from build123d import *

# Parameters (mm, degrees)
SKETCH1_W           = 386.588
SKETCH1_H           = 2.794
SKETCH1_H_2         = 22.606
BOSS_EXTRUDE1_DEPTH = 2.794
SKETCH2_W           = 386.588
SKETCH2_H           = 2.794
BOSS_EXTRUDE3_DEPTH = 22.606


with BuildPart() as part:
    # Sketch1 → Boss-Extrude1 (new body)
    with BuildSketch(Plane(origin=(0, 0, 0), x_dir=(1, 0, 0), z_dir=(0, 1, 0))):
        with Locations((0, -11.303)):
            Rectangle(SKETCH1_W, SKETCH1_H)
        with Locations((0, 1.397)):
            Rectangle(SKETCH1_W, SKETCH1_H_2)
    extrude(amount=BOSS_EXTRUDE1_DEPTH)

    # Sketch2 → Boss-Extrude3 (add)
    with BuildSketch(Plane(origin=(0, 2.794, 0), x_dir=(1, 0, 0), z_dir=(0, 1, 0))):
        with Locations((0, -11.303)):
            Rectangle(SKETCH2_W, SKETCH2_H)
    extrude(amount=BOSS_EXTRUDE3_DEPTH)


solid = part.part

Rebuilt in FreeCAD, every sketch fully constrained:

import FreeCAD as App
import Part
import Sketcher
from FreeCAD import Vector
Q = App.Units.Quantity

doc = App.newDocument("Part")
body = doc.addObject("PartDesign::Body", "Body")

sketch1 = doc.addObject("Sketcher::SketchObject", "Sketch")
body.addObject(sketch1)
sketch1.AttachmentSupport = (doc.XZ_Plane, [""])
sketch1.MapMode = "FlatFace"
sketch1.addGeometry(Part.LineSegment(Vector(-193, 13, 0), Vector(193, 13, 0)), False)
sketch1.addGeometry(Part.LineSegment(Vector(193, 13, 0), Vector(193, -13, 0)), False)
sketch1.addGeometry(Part.LineSegment(Vector(193, -13, 0), Vector(-193, -13, 0)), False)
sketch1.addGeometry(Part.LineSegment(Vector(-193, -13, 0), Vector(-193, 13, 0)), False)
sketch1.addConstraint(Sketcher.Constraint("Coincident", 0, 2, 1, 1))
sketch1.addConstraint(Sketcher.Constraint("Coincident", 1, 2, 2, 1))
sketch1.addConstraint(Sketcher.Constraint("Coincident", 2, 2, 3, 1))
sketch1.addConstraint(Sketcher.Constraint("Coincident", 3, 2, 0, 1))
sketch1.addConstraint(Sketcher.Constraint("Horizontal", 0))
sketch1.addConstraint(Sketcher.Constraint("Vertical", 1))
sketch1.addConstraint(Sketcher.Constraint("Horizontal", 2))
sketch1.addConstraint(Sketcher.Constraint("Vertical", 3))
sketch1.addConstraint(Sketcher.Constraint("Symmetric", 0, 2, 2, 2, -1, 1))
sketch1.addConstraint(Sketcher.Constraint("DistanceY", 1, 2, 1, 1, Q("1 in")))
sketch1.addConstraint(Sketcher.Constraint("DistanceX", 0, 1, 0, 2, Q("15.22 in")))
pad1 = doc.addObject("PartDesign::Pad", "Pad")
body.addObject(pad1)
pad1.Profile = sketch1
pad1.Length = Q("0.11 in")
pad1.Reversed = True

sketch2 = doc.addObject("Sketcher::SketchObject", "Sketch001")
body.addObject(sketch2)
sketch2.AttachmentSupport = (doc.XZ_Plane, [""])
sketch2.MapMode = "FlatFace"
sketch2.AttachmentOffset = App.Placement(Vector(0, 0, -0.11 * 25.4), App.Rotation())
sketch2.addGeometry(Part.LineSegment(Vector(-193.3, 9.9, 0), Vector(-193.3, 12.7, 0)), False)
sketch2.addGeometry(Part.LineSegment(Vector(-193.3, 12.7, 0), Vector(193.3, 12.7, 0)), False)
sketch2.addGeometry(Part.LineSegment(Vector(193.3, 12.7, 0), Vector(193.3, 9.9, 0)), False)
sketch2.addGeometry(Part.LineSegment(Vector(193.3, 9.9, 0), Vector(-193.3, 9.9, 0)), False)
sketch2.addConstraint(Sketcher.Constraint("Coincident", 0, 2, 1, 1))
sketch2.addConstraint(Sketcher.Constraint("Coincident", 1, 2, 2, 1))
sketch2.addConstraint(Sketcher.Constraint("Coincident", 2, 2, 3, 1))
sketch2.addConstraint(Sketcher.Constraint("Coincident", 3, 2, 0, 1))
sketch2.addConstraint(Sketcher.Constraint("Vertical", 0))
sketch2.addConstraint(Sketcher.Constraint("Horizontal", 1))
sketch2.addConstraint(Sketcher.Constraint("Vertical", 2))
sketch2.addConstraint(Sketcher.Constraint("Horizontal", 3))
sketch2.addConstraint(Sketcher.Constraint("DistanceX", 1, 1, 1, 2, Q("15.22 in")))
sketch2.addConstraint(Sketcher.Constraint("DistanceY", 0, 1, 0, 2, Q("0.11 in")))
sketch2.addConstraint(Sketcher.Constraint("DistanceY", -1, 1, 0, 2, Q("0.5 in")))
sketch2.addConstraint(Sketcher.Constraint("DistanceX", 0, 2, -1, 1, Q("7.61 in")))
pad2 = doc.addObject("PartDesign::Pad", "Pad001")
body.addObject(pad2)
pad2.Profile = sketch2
pad2.Length = Q("0.89 in")
pad2.Reversed = True

doc.recompute()
